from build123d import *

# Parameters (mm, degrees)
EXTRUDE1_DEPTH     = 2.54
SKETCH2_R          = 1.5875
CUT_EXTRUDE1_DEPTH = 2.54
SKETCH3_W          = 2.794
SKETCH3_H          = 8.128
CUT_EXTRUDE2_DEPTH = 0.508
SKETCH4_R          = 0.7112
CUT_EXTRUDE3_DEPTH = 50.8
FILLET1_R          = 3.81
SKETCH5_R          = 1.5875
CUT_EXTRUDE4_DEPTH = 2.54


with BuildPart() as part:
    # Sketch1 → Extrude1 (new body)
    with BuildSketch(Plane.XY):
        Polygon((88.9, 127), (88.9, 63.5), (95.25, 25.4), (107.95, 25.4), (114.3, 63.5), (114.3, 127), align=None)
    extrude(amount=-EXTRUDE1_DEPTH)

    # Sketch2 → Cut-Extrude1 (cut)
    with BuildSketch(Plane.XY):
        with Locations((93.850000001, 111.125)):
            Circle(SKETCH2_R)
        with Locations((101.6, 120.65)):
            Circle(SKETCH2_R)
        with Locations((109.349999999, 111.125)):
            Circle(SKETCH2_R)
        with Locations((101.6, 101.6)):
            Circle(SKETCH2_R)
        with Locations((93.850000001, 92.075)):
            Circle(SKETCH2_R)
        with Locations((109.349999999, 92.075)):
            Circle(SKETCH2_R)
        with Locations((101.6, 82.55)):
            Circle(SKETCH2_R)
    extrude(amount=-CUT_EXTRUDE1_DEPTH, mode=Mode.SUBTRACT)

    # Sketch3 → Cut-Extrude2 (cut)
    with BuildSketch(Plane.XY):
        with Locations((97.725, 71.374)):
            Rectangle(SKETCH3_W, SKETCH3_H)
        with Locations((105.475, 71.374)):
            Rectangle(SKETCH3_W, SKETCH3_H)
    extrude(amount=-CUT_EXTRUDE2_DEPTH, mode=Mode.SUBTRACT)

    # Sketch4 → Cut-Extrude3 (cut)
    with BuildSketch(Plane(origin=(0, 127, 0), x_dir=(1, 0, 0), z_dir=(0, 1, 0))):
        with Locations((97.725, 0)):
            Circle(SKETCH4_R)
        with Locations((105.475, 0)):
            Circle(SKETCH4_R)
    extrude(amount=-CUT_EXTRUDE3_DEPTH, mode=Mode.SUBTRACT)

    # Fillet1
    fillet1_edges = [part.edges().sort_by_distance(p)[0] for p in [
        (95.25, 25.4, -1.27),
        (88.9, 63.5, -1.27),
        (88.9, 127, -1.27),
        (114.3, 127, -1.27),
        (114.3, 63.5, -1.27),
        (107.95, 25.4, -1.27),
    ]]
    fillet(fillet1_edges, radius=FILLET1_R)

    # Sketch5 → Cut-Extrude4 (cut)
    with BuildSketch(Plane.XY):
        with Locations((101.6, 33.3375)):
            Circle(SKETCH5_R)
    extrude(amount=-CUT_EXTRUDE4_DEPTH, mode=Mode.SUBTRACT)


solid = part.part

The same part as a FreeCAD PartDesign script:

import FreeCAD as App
import Part
import Sketcher
Q = App.Units.Quantity


def edges_at(feature, points):
    """Names of the edges that pass closest to the given points."""
    edges = feature.Shape.Edges
    near = lambda p: min(range(len(edges)), key=lambda i: edges[i].distToShape(Part.Vertex(*p))[0])
    return sorted({f"Edge{near(p) + 1}" for p in points})

doc = App.newDocument("Part")
body = doc.addObject("PartDesign::Body", "Body")

# Sketch on XY plane
sketch1 = body.newObject("Sketcher::SketchObject", "Sketch")
sketch1.AttachmentSupport = (doc.getObject("XY_Plane"), [""])
sketch1.MapMode = "FlatFace"
sketch1.addGeometry([
    Part.LineSegment(App.Vector(88.9, 127, 0), App.Vector(88.9, 63.5, 0)),  # 0
    Part.LineSegment(App.Vector(88.9, 63.5, 0), App.Vector(95.25, 25.4, 0)),  # 1
    Part.LineSegment(App.Vector(95.25, 25.4, 0), App.Vector(107.95, 25.4, 0)),  # 2
    Part.LineSegment(App.Vector(107.95, 25.4, 0), App.Vector(114.3, 63.5, 0)),  # 3
    Part.LineSegment(App.Vector(114.3, 63.5, 0), App.Vector(114.3, 127, 0)),  # 4
    Part.LineSegment(App.Vector(114.3, 127, 0), App.Vector(88.9, 127, 0)),  # 5
], False)
sketch1.addConstraint([
    Sketcher.Constraint("Coincident", 0, 2, 1, 1),
    Sketcher.Constraint("Coincident", 1, 2, 2, 1),
    Sketcher.Constraint("Coincident", 2, 2, 3, 1),
    Sketcher.Constraint("Coincident", 3, 2, 4, 1),
    Sketcher.Constraint("Coincident", 4, 2, 5, 1),
    Sketcher.Constraint("Coincident", 5, 2, 0, 1),
    Sketcher.Constraint("Vertical", 0),
    Sketcher.Constraint("Horizontal", 2),
    Sketcher.Constraint("Vertical", 4),
    Sketcher.Constraint("Horizontal", 5),
    Sketcher.Constraint("Horizontal", 0, 2, 3, 2),
    Sketcher.Constraint("Equal", 1, 3),
    Sketcher.Constraint("DistanceX", 5, 2, 5, 1, Q("1 in")),
    Sketcher.Constraint("DistanceX", 2, 1, 2, 2, Q("0.5 in")),
    Sketcher.Constraint("DistanceY", 0, 2, 0, 1, Q("2.5 in")),
    Sketcher.Constraint("DistanceY", -1, 1, 1, 2, Q("1 in")),
    Sketcher.Constraint("DistanceY", -1, 1, 4, 2, Q("5 in")),
    Sketcher.Constraint("DistanceX", -1, 1, 0, 2, Q("3.5 in")),
])
pad1 = body.newObject("PartDesign::Pad", "Pad")
pad1.Profile = sketch1
pad1.Length = Q("0.1 in")
pad1.Reversed = True

# Sketch on XY plane
sketch2 = body.newObject("Sketcher::SketchObject", "Sketch001")
sketch2.AttachmentSupport = (doc.getObject("XY_Plane"), [""])
sketch2.MapMode = "FlatFace"
sketch2.addGeometry([
    Part.Circle(App.Vector(93.85, 111.125, 0), App.Vector(0, 0, 1), 1.5875),  # 0
    Part.Circle(App.Vector(101.6, 120.65, 0), App.Vector(0, 0, 1), 1.5875),  # 1
    Part.Circle(App.Vector(109.35, 111.125, 0), App.Vector(0, 0, 1), 1.5875),  # 2
    Part.Circle(App.Vector(101.6, 101.6, 0), App.Vector(0, 0, 1), 1.5875),  # 3
    Part.Circle(App.Vector(93.85, 92.075, 0), App.Vector(0, 0, 1), 1.5875),  # 4
    Part.Circle(App.Vector(109.35, 92.075, 0), App.Vector(0, 0, 1), 1.5875),  # 5
    Part.Circle(App.Vector(101.6, 82.55, 0), App.Vector(0, 0, 1), 1.5875),  # 6
], False)
sketch2.addConstraint([
    Sketcher.Constraint("Equal", 0, 1),
    Sketcher.Constraint("Equal", 1, 2),
    Sketcher.Constraint("Equal", 2, 3),
    Sketcher.Constraint("Equal", 3, 4),
    Sketcher.Constraint("Equal", 4, 5),
    Sketcher.Constraint("Equal", 5, 6),
    Sketcher.Constraint("Horizontal", 0, 3, 2, 3),
    Sketcher.Constraint("Horizontal", 4, 3, 5, 3),
    Sketcher.Constraint("Vertical", 1, 3, 3, 3),
    Sketcher.Constraint("Vertical", 0, 3, 4, 3),
    Sketcher.Constraint("Vertical", 2, 3, 5, 3),
    Sketcher.Constraint("Vertical", 3, 3, 6, 3),
    Sketcher.Constraint("Diameter", 0, Q("0.125 in")),
    Sketcher.Constraint("DistanceX", -1, 1, 1, 3, Q("4 in")),
    Sketcher.Constraint("DistanceY", -1, 1, 3, 3, Q("4 in")),
    Sketcher.Constraint("DistanceY", -1, 1, 1, 3, Q("4.75 in")),
    Sketcher.Constraint("DistanceY", -1, 1, 6, 3, Q("3.25 in")),
    Sketcher.Constraint("DistanceY", 4, 3, 0, 3, Q("0.75 in")),
    Sketcher.Constraint("DistanceY", -1, 1, 0, 3, Q("4.375 in")),
    Sketcher.Constraint("DistanceX", -1, 1, 0, 3, Q("93.85 mm")),
    Sketcher.Constraint("DistanceX", -1, 1, 2, 3, Q("109.35 mm")),
])
pocket1 = body.newObject("PartDesign::Pocket", "Pocket")
pocket1.Profile = sketch2
pocket1.Length = Q("0.1 in")

# Sketch on XY plane
sketch3 = body.newObject("Sketcher::SketchObject", "Sketch002")
sketch3.AttachmentSupport = (doc.getObject("XY_Plane"), [""])
sketch3.MapMode = "FlatFace"
sketch3.addGeometry([
    Part.LineSegment(App.Vector(96.328, 75.438, 0), App.Vector(96.328, 67.31, 0)),  # 0
    Part.LineSegment(App.Vector(96.328, 67.31, 0), App.Vector(99.122, 67.31, 0)),  # 1
    Part.LineSegment(App.Vector(99.122, 67.31, 0), App.Vector(99.122, 75.438, 0)),  # 2
    Part.LineSegment(App.Vector(99.122, 75.438, 0), App.Vector(96.328, 75.438, 0)),  # 3
    Part.LineSegment(App.Vector(104.078, 75.438, 0), App.Vector(104.078, 67.31, 0)),  # 4
    Part.LineSegment(App.Vector(104.078, 67.31, 0), App.Vector(106.872, 67.31, 0)),  # 5
    Part.LineSegment(App.Vector(106.872, 67.31, 0), App.Vector(106.872, 75.438, 0)),  # 6
    Part.LineSegment(App.Vector(106.872, 75.438, 0), App.Vector(104.078, 75.438, 0)),  # 7
], False)
sketch3.addConstraint([
    Sketcher.Constraint("Coincident", 0, 2, 1, 1),
    Sketcher.Constraint("Coincident", 1, 2, 2, 1),
    Sketcher.Constraint("Coincident", 2, 2, 3, 1),
    Sketcher.Constraint("Coincident", 3, 2, 0, 1),
    Sketcher.Constraint("Coincident", 4, 2, 5, 1),
    Sketcher.Constraint("Coincident", 5, 2, 6, 1),
    Sketcher.Constraint("Coincident", 6, 2, 7, 1),
    Sketcher.Constraint("Coincident", 7, 2, 4, 1),
    Sketcher.Constraint("Vertical", 0),
    Sketcher.Constraint("Horizontal", 1),
    Sketcher.Constraint("Vertical", 2),
    Sketcher.Constraint("Horizontal", 3),
    Sketcher.Constraint("Vertical", 4),
    Sketcher.Constraint("Horizontal", 5),
    Sketcher.Constraint("Vertical", 6),
    Sketcher.Constraint("Horizontal", 7),
    Sketcher.Constraint("Horizontal", 1, 2, 4, 2),
    Sketcher.Constraint("Horizontal", 3, 2, 6, 2),
    Sketcher.Constraint("Equal", 3, 5),
    Sketcher.Constraint("DistanceX", 1, 1, 1, 2, Q("0.11 in")),
    Sketcher.Constraint("DistanceY", 0, 2, 0, 1, Q("0.32 in")),
    Sketcher.Constraint("DistanceY", -1, 1, 0, 2, Q("2.65 in")),
    Sketcher.Constraint("DistanceX", -1, 1, 0, 2, Q("96.328 mm")),
    Sketcher.Constraint("DistanceX", -1, 1, 4, 2, Q("104.078 mm")),
])
pocket2 = body.newObject("PartDesign::Pocket", "Pocket001")
pocket2.Profile = sketch3
pocket2.Length = Q("0.02 in")

# Sketch on XZ plane
sketch4 = body.newObject("Sketcher::SketchObject", "Sketch003")
sketch4.AttachmentSupport = (doc.getObject("XZ_Plane"), [""])
sketch4.MapMode = "FlatFace"
sketch4.AttachmentOffset = App.Placement(App.Vector(0, 0, -5 * 25.4), App.Rotation())
sketch4.addGeometry([
    Part.Circle(App.Vector(97.725, 0, 0), App.Vector(0, 0, 1), 0.7112),
    Part.Circle(App.Vector(105.475, 0, 0), App.Vector(0, 0, 1), 0.7112),
], False)
sketch4.addConstraint([
    Sketcher.Constraint("Equal", 0, 1),
    Sketcher.Constraint("PointOnObject", 0, 3, -1),
    Sketcher.Constraint("PointOnObject", 1, 3, -1),
    Sketcher.Constraint("Diameter", 0, Q("0.056 in")),
    Sketcher.Constraint("DistanceX", -1, 1, 0, 3, Q("97.725 mm")),
    Sketcher.Constraint("DistanceX", -1, 1, 1, 3, Q("105.475 mm")),
])
pocket3 = body.newObject("PartDesign::Pocket", "Pocket002")
pocket3.Profile = sketch4
pocket3.Length = Q("2 in")
pocket3.Reversed = True
doc.recompute()

fillet = body.newObject("PartDesign::Fillet", "Fillet")
fillet.Base = (pocket3, edges_at(pocket3, [
    (95.25, 25.4, -1.27),
    (88.9, 63.5, -1.27),
    (88.9, 127, -1.27),
    (114.3, 127, -1.27),
    (114.3, 63.5, -1.27),
    (107.95, 25.4, -1.27),
]))
fillet.Radius = Q("0.15 in")

# Sketch on XY plane
sketch5 = body.newObject("Sketcher::SketchObject", "Sketch004")
sketch5.AttachmentSupport = (doc.getObject("XY_Plane"), [""])
sketch5.MapMode = "FlatFace"
sketch5.addGeometry(Part.Circle(App.Vector(101.6, 33.3375, 0), App.Vector(0, 0, 1), 1.5875), False)
sketch5.addConstraint([
    Sketcher.Constraint("Diameter", 0, Q("0.125 in")),
    Sketcher.Constraint("DistanceX", -1, 1, 0, 3, Q("4 in")),
    Sketcher.Constraint("DistanceY", -1, 1, 0, 3, Q("1.3125 in")),
])
pocket4 = body.newObject("PartDesign::Pocket", "Pocket003")
pocket4.Profile = sketch5
pocket4.Length = Q("0.1 in")

doc.recompute()
